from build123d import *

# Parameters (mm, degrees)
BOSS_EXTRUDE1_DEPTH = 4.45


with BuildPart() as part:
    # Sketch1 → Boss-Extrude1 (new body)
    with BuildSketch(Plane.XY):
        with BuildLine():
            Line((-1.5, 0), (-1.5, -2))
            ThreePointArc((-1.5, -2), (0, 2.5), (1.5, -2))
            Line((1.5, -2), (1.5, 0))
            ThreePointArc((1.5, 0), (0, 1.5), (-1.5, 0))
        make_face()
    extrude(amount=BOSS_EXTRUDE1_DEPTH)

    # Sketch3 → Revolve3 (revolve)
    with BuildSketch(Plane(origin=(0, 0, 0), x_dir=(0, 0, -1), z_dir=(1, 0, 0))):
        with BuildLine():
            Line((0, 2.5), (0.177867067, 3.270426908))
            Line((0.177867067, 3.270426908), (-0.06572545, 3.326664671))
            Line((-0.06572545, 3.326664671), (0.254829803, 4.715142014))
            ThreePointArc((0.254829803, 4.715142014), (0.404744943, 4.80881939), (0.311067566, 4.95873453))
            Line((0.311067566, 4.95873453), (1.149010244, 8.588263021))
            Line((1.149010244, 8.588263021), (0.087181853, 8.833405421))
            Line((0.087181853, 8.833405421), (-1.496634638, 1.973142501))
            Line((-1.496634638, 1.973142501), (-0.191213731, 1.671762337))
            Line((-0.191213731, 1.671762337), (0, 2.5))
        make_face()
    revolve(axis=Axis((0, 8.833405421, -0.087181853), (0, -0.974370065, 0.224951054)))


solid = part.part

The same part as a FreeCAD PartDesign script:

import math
import FreeCAD as App
import Part
import Sketcher
from FreeCAD import Vector
Q = App.Units.Quantity

doc = App.newDocument("Part")
body = doc.addObject("PartDesign::Body", "Body")

# Sketch on XY plane
sketch1 = body.newObject("Sketcher::SketchObject", "Sketch")
sketch1.AttachmentSupport = (doc.getObject("XY_Plane"), [""])
sketch1.MapMode = "FlatFace"
sketch1.addGeometry(Part.LineSegment(Vector(-1.5, -2, 0), Vector(-1.5, 0, 0)), False)
sketch1.addGeometry(Part.ArcOfCircle(Part.Circle(Vector(0, 0, 0), Vector(0, 0, 1), 1.5), math.radians(0), math.radians(180)), False)
sketch1.addGeometry(Part.LineSegment(Vector(1.5, 0, 0), Vector(1.5, -2, 0)), False)
sketch1.addGeometry(Part.ArcOfCircle(Part.Circle(Vector(0, 0, 0), Vector(0, 0, 1), 2.5), math.radians(-53), math.radians(233)), False)
sketch1.addConstraint(Sketcher.Constraint("Tangent", 0, 2, 1, 2))
sketch1.addConstraint(Sketcher.Constraint("Tangent", 1, 1, 2, 1))
sketch1.addConstraint(Sketcher.Constraint("Coincident", 2, 2, 3, 1))
sketch1.addConstraint(Sketcher.Constraint("Coincident", 3, 2, 0, 1))
sketch1.addConstraint(Sketcher.Constraint("Vertical", 0))
sketch1.addConstraint(Sketcher.Constraint("Vertical", 2))
sketch1.addConstraint(Sketcher.Constraint("Coincident", 1, 3, -1, 1))
sketch1.addConstraint(Sketcher.Constraint("Coincident", 3, 3, -1, 1))
sketch1.addConstraint(Sketcher.Constraint("Radius", 1, 1.5))
sketch1.addConstraint(Sketcher.Constraint("Radius", 3, 2.5))
pad1 = body.newObject("PartDesign::Pad", "Pad")
pad1.Profile = sketch1
pad1.Length = 4.45

# Sketch on YZ plane
sketch2 = body.newObject("Sketcher::SketchObject", "Sketch001")
sketch2.AttachmentSupport = (doc.getObject("YZ_Plane"), [""])
sketch2.MapMode = "FlatFace"
sketch2.addGeometry(Part.LineSegment(Vector(2.5, 0, 0), Vector(3.27, -0.18, 0)), False)
sketch2.addGeometry(Part.LineSegment(Vector(3.27, -0.18, 0), Vector(3.33, 0.07, 0)), False)
sketch2.addGeometry(Part.LineSegment(Vector(3.33, 0.07, 0), Vector(4.72, -0.25, 0)), False)
sketch2.addGeometry(Part.ArcOfCircle(Part.Circle(Vector(4.84, -0.28, 0), Vector(0, 0, 1), 0.12), math.radians(167), math.radians(347)), False)
sketch2.addGeometry(Part.LineSegment(Vector(4.96, -0.31, 0), Vector(8.59, -1.15, 0)), False)
sketch2.addGeometry(Part.LineSegment(Vector(8.59, -1.15, 0), Vector(8.83, -0.09, 0)), False)
sketch2.addGeometry(Part.LineSegment(Vector(8.83, -0.09, 0), Vector(1.97, 1.5, 0)), False)
sketch2.addGeometry(Part.LineSegment(Vector(1.97, 1.5, 0), Vector(1.67, 0.19, 0)), False)
sketch2.addGeometry(Part.LineSegment(Vector(1.67, 0.19, 0), Vector(2.5, 0, 0)), False)
sketch2.addGeometry(Part.LineSegment(Vector(8.83, -0.09, 0), Vector(1.97, 1.5, 0)), True)  # axis
sketch2.addConstraint(Sketcher.Constraint("Coincident", 0, 2, 1, 1))
sketch2.addConstraint(Sketcher.Constraint("Coincident", 1, 2, 2, 1))
sketch2.addConstraint(Sketcher.Constraint("Coincident", 2, 2, 3, 1))
sketch2.addConstraint(Sketcher.Constraint("Coincident", 3, 2, 4, 1))
sketch2.addConstraint(Sketcher.Constraint("Coincident", 4, 2, 5, 1))
sketch2.addConstraint(Sketcher.Constraint("Coincident", 5, 2, 6, 1))
sketch2.addConstraint(Sketcher.Constraint("Coincident", 6, 2, 7, 1))
sketch2.addConstraint(Sketcher.Constraint("Coincident", 7, 2, 8, 1))
sketch2.addConstraint(Sketcher.Constraint("Coincident", 8, 2, 0, 1))
sketch2.addConstraint(Sketcher.Constraint("Coincident", 9, 1, 5, 2))
sketch2.addConstraint(Sketcher.Constraint("Coincident", 9, 2, 6, 2))
sketch2.addConstraint(Sketcher.Constraint("PointOnObject", 8, 2, -1))
sketch2.addConstraint(Sketcher.Constraint("Perpendicular", 0, 1))
sketch2.addConstraint(Sketcher.Constraint("Perpendicular", 1, 2))
sketch2.addConstraint(Sketcher.Constraint("Parallel", 2, 4))
sketch2.addConstraint(Sketcher.Constraint("Perpendicular", 4, 5))
sketch2.addConstraint(Sketcher.Constraint("Perpendicular", 5, 6))
sketch2.addConstraint(Sketcher.Constraint("Perpendicular", 6, 7))
sketch2.addConstraint(Sketcher.Constraint("Perpendicular", 7, 8))
sketch2.addConstraint(Sketcher.Constraint("Angle", 0, Q("-13 deg")))
sketch2.addConstraint(Sketcher.Constraint("Radius", 3, 0.125))
sketch2.addConstraint(Sketcher.Constraint("DistanceX", -1, 1, 8, 2, 2.5))
sketch2.addConstraint(Sketcher.Constraint("Distance", 1, 0.25))
sketch2.addConstraint(Sketcher.Constraint("Distance", 2, 1.425))
sketch2.addConstraint(Sketcher.Constraint("Distance", 4, 3.725))
sketch2.addConstraint(Sketcher.Constraint("DistanceX", 6, 2, 2, 2, 2.742))
sketch2.addConstraint(Sketcher.Constraint("DistanceY", 3, 2, 0, 2, 0.1332))
sketch2.addConstraint(Sketcher.Constraint("DistanceY", 0, 2, 6, 2, 1.674502))
sketch2.addConstraint(Sketcher.Constraint("DistanceX", -1, 1, 3, 3, 4.836938))
sketch2.addConstraint(Sketcher.Constraint("DistanceY", 3, 3, -1, 1, 0.282949))
revolution = body.newObject("PartDesign::Revolution", "Revolution")
revolution.Profile = sketch2
revolution.ReferenceAxis = (sketch2, ["Axis0"])
revolution.Angle = 360

doc.recompute()
